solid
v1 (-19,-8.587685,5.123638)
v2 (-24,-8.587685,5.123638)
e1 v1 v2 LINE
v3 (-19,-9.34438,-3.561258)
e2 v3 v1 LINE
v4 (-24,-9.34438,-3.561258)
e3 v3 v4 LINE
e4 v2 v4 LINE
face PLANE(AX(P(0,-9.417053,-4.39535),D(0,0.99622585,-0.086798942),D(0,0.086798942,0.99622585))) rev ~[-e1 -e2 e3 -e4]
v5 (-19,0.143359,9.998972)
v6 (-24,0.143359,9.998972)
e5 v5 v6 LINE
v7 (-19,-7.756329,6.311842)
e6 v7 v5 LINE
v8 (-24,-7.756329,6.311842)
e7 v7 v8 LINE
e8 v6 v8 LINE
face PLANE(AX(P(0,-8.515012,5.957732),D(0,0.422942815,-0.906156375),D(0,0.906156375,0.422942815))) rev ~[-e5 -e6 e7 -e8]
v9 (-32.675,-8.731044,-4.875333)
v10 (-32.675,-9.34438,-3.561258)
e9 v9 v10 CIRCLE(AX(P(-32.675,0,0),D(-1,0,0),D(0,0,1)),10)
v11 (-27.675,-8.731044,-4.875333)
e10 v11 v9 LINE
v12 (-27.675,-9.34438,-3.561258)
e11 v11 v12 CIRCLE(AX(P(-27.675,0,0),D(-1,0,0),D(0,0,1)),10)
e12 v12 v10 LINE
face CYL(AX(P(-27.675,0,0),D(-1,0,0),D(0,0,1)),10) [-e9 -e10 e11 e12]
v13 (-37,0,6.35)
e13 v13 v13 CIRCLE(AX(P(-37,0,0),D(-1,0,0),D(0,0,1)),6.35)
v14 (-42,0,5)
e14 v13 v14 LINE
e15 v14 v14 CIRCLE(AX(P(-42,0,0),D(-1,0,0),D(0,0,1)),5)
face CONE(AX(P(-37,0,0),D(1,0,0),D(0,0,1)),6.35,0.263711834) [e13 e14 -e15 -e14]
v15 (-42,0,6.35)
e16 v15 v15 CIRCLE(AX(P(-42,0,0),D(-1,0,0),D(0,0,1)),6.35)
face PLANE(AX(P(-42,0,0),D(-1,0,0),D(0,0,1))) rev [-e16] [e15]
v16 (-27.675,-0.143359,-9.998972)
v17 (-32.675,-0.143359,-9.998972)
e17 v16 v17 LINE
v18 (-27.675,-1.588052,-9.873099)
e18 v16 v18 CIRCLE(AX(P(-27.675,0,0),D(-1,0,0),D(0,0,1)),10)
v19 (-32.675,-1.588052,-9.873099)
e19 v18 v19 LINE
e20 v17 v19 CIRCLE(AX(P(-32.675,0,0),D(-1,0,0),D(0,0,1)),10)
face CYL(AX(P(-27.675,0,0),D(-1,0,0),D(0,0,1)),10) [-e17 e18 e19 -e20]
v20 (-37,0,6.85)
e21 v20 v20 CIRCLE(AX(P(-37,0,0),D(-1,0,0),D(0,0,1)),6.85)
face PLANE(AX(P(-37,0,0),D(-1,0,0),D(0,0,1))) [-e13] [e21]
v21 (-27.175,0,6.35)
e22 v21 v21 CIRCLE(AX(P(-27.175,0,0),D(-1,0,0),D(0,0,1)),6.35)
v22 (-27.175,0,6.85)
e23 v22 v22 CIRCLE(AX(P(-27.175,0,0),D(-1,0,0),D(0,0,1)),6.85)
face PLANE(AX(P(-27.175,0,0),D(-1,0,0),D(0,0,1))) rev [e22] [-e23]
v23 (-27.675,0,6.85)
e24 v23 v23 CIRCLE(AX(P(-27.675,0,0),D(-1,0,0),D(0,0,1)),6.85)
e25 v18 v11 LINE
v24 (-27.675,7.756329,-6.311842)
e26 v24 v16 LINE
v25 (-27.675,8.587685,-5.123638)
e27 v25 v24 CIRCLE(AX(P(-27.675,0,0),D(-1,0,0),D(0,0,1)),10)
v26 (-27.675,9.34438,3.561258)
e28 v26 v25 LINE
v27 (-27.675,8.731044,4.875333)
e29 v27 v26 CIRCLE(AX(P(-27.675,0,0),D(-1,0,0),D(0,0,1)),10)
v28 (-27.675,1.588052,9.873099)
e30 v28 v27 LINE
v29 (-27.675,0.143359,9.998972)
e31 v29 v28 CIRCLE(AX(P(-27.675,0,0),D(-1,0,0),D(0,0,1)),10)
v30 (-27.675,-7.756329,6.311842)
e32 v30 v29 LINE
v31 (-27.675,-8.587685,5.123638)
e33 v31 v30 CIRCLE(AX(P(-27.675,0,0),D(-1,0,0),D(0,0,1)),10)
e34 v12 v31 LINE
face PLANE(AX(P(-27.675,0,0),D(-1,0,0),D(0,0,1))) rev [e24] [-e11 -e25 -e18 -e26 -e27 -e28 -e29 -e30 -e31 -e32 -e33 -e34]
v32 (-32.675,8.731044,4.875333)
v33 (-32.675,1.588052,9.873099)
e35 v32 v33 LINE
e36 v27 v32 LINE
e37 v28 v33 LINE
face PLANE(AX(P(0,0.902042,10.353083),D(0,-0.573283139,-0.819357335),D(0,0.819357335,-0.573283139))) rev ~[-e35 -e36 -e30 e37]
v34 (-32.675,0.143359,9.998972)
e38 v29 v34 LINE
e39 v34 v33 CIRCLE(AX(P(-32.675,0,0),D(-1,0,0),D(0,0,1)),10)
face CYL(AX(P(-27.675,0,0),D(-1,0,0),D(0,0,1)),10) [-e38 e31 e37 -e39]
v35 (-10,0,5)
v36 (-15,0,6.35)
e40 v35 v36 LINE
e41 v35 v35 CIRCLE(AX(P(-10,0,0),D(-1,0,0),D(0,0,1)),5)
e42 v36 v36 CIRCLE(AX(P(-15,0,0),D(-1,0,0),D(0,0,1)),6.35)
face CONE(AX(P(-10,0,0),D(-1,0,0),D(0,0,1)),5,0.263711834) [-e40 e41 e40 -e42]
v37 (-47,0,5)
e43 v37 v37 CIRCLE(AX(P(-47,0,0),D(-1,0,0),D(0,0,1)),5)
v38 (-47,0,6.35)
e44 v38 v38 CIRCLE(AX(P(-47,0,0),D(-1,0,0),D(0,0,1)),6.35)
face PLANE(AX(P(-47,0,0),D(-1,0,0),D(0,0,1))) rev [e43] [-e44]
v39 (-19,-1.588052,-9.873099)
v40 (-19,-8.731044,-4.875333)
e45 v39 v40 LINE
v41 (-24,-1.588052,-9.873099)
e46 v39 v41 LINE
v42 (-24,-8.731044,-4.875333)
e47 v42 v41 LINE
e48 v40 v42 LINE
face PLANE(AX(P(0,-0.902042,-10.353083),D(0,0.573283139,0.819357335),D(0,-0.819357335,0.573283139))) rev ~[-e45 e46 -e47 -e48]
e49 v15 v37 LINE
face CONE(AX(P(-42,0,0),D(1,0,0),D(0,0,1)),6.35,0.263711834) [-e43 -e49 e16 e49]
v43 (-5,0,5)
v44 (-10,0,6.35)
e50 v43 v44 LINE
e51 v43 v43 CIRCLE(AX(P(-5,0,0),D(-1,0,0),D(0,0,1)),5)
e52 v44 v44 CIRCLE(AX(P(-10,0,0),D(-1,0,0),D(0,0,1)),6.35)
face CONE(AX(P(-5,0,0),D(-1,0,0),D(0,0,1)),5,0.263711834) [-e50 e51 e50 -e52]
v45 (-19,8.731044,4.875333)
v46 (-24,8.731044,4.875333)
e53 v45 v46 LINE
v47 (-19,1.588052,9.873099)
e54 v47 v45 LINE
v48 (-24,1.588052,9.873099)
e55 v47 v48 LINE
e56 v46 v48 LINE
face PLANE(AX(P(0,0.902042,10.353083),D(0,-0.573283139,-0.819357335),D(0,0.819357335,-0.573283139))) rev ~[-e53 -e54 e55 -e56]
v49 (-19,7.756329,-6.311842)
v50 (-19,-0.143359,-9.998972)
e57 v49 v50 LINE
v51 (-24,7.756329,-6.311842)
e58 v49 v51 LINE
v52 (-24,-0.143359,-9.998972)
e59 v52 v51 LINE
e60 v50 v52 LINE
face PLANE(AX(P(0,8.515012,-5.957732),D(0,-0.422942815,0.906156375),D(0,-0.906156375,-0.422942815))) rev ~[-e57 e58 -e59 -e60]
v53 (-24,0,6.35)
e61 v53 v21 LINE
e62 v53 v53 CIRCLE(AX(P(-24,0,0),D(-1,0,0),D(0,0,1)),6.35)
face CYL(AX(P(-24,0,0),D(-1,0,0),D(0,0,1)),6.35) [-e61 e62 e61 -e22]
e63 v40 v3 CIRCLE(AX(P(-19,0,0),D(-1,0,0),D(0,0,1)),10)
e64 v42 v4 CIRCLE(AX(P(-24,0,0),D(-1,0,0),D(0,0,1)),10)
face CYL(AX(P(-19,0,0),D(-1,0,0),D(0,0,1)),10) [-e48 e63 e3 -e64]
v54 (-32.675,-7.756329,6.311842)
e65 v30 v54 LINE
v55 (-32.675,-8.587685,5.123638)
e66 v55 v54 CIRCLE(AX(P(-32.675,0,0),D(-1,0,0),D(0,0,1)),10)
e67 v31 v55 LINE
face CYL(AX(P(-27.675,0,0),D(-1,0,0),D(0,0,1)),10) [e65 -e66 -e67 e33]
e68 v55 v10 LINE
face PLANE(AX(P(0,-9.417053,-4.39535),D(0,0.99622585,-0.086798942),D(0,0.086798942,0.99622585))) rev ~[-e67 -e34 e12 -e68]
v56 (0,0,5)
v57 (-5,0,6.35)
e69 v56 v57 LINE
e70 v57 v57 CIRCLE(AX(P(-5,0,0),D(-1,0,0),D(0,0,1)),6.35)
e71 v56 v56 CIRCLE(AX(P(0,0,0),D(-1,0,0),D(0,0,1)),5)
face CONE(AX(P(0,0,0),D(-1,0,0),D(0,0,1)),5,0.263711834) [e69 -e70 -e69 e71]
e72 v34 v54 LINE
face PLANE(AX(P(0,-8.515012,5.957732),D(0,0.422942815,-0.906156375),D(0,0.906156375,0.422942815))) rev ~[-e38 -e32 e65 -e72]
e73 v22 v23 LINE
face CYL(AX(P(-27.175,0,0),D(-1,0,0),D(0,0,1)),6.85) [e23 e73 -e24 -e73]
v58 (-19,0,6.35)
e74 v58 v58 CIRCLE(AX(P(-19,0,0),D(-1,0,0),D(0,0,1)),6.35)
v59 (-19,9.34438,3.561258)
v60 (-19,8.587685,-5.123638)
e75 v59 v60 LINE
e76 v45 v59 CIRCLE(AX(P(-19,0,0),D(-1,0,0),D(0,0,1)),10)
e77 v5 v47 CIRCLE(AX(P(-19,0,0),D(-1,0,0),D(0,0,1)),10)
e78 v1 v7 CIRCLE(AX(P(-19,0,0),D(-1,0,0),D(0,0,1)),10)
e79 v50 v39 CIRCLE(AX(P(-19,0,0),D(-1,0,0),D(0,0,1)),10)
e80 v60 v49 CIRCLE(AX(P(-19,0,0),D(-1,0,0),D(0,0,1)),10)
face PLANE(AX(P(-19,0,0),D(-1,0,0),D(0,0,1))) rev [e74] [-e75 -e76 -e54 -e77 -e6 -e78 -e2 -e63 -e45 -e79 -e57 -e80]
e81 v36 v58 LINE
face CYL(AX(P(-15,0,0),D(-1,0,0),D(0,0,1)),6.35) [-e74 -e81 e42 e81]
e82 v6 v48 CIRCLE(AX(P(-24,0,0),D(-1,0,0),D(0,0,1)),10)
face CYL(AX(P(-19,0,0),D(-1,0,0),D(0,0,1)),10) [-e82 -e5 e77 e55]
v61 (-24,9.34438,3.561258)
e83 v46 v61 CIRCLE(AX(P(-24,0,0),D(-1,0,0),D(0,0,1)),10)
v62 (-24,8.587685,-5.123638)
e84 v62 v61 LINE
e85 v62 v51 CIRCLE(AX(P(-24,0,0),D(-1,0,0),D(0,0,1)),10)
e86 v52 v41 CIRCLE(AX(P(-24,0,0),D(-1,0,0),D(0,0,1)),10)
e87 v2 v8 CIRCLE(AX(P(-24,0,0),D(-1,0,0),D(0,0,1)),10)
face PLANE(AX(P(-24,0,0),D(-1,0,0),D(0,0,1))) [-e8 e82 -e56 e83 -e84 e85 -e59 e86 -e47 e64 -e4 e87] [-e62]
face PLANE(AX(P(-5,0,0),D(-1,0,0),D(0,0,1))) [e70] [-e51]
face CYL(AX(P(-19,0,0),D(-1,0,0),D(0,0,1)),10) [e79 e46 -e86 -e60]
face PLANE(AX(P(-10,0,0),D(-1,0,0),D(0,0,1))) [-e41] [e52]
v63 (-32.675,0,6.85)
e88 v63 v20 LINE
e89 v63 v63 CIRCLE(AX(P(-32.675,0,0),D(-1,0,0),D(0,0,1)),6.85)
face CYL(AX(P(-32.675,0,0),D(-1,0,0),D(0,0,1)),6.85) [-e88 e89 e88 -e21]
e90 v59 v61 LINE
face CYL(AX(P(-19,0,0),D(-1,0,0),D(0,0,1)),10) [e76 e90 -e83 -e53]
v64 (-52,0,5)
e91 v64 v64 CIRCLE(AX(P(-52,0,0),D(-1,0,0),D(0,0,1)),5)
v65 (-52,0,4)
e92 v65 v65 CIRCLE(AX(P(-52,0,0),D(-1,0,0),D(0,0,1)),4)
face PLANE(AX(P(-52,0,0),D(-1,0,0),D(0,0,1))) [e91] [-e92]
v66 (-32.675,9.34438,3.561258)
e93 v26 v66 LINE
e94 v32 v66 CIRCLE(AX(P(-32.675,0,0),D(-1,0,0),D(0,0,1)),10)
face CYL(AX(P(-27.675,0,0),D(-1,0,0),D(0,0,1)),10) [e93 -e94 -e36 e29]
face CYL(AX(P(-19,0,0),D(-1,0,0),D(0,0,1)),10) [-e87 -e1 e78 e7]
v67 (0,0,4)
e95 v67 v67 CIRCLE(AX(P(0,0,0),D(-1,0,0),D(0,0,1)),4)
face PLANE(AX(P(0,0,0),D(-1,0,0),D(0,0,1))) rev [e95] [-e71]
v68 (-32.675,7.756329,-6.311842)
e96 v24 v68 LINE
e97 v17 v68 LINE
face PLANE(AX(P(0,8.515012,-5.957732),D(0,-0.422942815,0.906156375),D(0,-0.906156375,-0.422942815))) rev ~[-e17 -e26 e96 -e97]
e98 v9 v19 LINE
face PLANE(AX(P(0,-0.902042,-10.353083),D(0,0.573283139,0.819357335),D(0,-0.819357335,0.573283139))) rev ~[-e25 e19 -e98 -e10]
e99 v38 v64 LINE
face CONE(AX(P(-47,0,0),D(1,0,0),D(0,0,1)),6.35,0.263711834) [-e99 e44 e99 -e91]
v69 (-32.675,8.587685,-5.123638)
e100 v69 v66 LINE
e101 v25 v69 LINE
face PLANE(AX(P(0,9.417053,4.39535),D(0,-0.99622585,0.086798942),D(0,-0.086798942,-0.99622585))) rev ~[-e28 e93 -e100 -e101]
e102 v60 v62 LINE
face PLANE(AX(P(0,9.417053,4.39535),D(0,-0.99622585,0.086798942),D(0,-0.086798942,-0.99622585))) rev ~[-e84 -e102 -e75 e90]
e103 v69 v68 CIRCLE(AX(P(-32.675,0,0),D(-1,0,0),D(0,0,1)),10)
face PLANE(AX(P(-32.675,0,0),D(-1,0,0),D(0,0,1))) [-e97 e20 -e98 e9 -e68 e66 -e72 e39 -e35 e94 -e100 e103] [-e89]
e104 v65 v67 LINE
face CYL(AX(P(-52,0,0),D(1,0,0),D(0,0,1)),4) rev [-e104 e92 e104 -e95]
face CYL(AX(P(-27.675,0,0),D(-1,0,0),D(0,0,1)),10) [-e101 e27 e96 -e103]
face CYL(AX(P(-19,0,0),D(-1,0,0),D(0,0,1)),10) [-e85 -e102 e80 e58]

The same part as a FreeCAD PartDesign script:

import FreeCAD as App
import Part
import Sketcher

V = App.Vector
Q = App.Units.Quantity

doc = App.newDocument("Part")
body = doc.addObject("PartDesign::Body", "Body")

# Sketch on XZ plane
sketch1 = body.newObject("Sketcher::SketchObject", "Sketch")
sketch1.AttachmentSupport = (doc.getObject("XZ_Plane"), [""])
sketch1.MapMode = "FlatFace"
sketch1.addGeometry(Part.LineSegment(V(-52, 5, 0), V(-52, 4, 0)), False)
sketch1.addGeometry(Part.LineSegment(V(-52, 4, 0), V(0, 4, 0)), False)
sketch1.addGeometry(Part.LineSegment(V(0, 4, 0), V(0, 5, 0)), False)
sketch1.addGeometry(Part.LineSegment(V(0, 5, 0), V(-5, 6.35, 0)), False)
sketch1.addGeometry(Part.LineSegment(V(-5, 6.35, 0), V(-5, 5, 0)), False)
sketch1.addGeometry(Part.LineSegment(V(-5, 5, 0), V(-10, 6.35, 0)), False)
sketch1.addGeometry(Part.LineSegment(V(-10, 6.35, 0), V(-10, 5, 0)), False)
sketch1.addGeometry(Part.LineSegment(V(-10, 5, 0), V(-15, 6.35, 0)), False)
sketch1.addGeometry(Part.LineSegment(V(-15, 6.35, 0), V(-19, 6.35, 0)), False)
sketch1.addGeometry(Part.LineSegment(V(-19, 6.35, 0), V(-19, 10, 0)), False)
sketch1.addGeometry(Part.LineSegment(V(-19, 10, 0), V(-24, 10, 0)), False)
sketch1.addGeometry(Part.LineSegment(V(-24, 10, 0), V(-24, 6.35, 0)), False)
sketch1.addGeometry(Part.LineSegment(V(-24, 6.35, 0), V(-27.175, 6.35, 0)), False)
sketch1.addGeometry(Part.LineSegment(V(-27.175, 6.35, 0), V(-27.175, 6.85, 0)), False)
sketch1.addGeometry(Part.LineSegment(V(-27.175, 6.85, 0), V(-27.675, 6.85, 0)), False)
sketch1.addGeometry(Part.LineSegment(V(-27.675, 6.85, 0), V(-27.675, 10, 0)), False)
sketch1.addGeometry(Part.LineSegment(V(-27.675, 10, 0), V(-32.675, 10, 0)), False)
sketch1.addGeometry(Part.LineSegment(V(-32.675, 10, 0), V(-32.675, 6.85, 0)), False)
sketch1.addGeometry(Part.LineSegment(V(-32.675, 6.85, 0), V(-37, 6.85, 0)), False)
sketch1.addGeometry(Part.LineSegment(V(-37, 6.85, 0), V(-37, 6.35, 0)), False)
sketch1.addGeometry(Part.LineSegment(V(-37, 6.35, 0), V(-42, 5, 0)), False)
sketch1.addGeometry(Part.LineSegment(V(-42, 5, 0), V(-42, 6.35, 0)), False)
sketch1.addGeometry(Part.LineSegment(V(-42, 6.35, 0), V(-47, 5, 0)), False)
sketch1.addGeometry(Part.LineSegment(V(-47, 5, 0), V(-47, 6.35, 0)), False)
sketch1.addGeometry(Part.LineSegment(V(-47, 6.35, 0), V(-52, 5, 0)), False)
sketch1.addConstraint(Sketcher.Constraint("Coincident", 0, 2, 1, 1))
sketch1.addConstraint(Sketcher.Constraint("Coincident", 1, 2, 2, 1))
sketch1.addConstraint(Sketcher.Constraint("Coincident", 2, 2, 3, 1))
sketch1.addConstraint(Sketcher.Constraint("Coincident", 3, 2, 4, 1))
sketch1.addConstraint(Sketcher.Constraint("Coincident", 4, 2, 5, 1))
sketch1.addConstraint(Sketcher.Constraint("Coincident", 5, 2, 6, 1))
sketch1.addConstraint(Sketcher.Constraint("Coincident", 6, 2, 7, 1))
sketch1.addConstraint(Sketcher.Constraint("Coincident", 7, 2, 8, 1))
sketch1.addConstraint(Sketcher.Constraint("Coincident", 8, 2, 9, 1))
sketch1.addConstraint(Sketcher.Constraint("Coincident", 9, 2, 10, 1))
sketch1.addConstraint(Sketcher.Constraint("Coincident", 10, 2, 11, 1))
sketch1.addConstraint(Sketcher.Constraint("Coincident", 11, 2, 12, 1))
sketch1.addConstraint(Sketcher.Constraint("Coincident", 12, 2, 13, 1))
sketch1.addConstraint(Sketcher.Constraint("Coincident", 13, 2, 14, 1))
sketch1.addConstraint(Sketcher.Constraint("Coincident", 14, 2, 15, 1))
sketch1.addConstraint(Sketcher.Constraint("Coincident", 15, 2, 16, 1))
sketch1.addConstraint(Sketcher.Constraint("Coincident", 16, 2, 17, 1))
sketch1.addConstraint(Sketcher.Constraint("Coincident", 17, 2, 18, 1))
sketch1.addConstraint(Sketcher.Constraint("Coincident", 18, 2, 19, 1))
sketch1.addConstraint(Sketcher.Constraint("Coincident", 19, 2, 20, 1))
sketch1.addConstraint(Sketcher.Constraint("Coincident", 20, 2, 21, 1))
sketch1.addConstraint(Sketcher.Constraint("Coincident", 21, 2, 22, 1))
sketch1.addConstraint(Sketcher.Constraint("Coincident", 22, 2, 23, 1))
sketch1.addConstraint(Sketcher.Constraint("Coincident", 23, 2, 24, 1))
sketch1.addConstraint(Sketcher.Constraint("Coincident", 24, 2, 0, 1))
sketch1.addConstraint(Sketcher.Constraint("Vertical", 0))
sketch1.addConstraint(Sketcher.Constraint("Horizontal", 1))
sketch1.addConstraint(Sketcher.Constraint("Vertical", 2))
sketch1.addConstraint(Sketcher.Constraint("Vertical", 4))
sketch1.addConstraint(Sketcher.Constraint("Vertical", 6))
sketch1.addConstraint(Sketcher.Constraint("Horizontal", 8))
sketch1.addConstraint(Sketcher.Constraint("Vertical", 9))
sketch1.addConstraint(Sketcher.Constraint("Horizontal", 10))
sketch1.addConstraint(Sketcher.Constraint("Vertical", 11))
sketch1.addConstraint(Sketcher.Constraint("Horizontal", 12))
sketch1.addConstraint(Sketcher.Constraint("Vertical", 13))
sketch1.addConstraint(Sketcher.Constraint("Horizontal", 14))
sketch1.addConstraint(Sketcher.Constraint("Vertical", 15))
sketch1.addConstraint(Sketcher.Constraint("Horizontal", 16))
sketch1.addConstraint(Sketcher.Constraint("Vertical", 17))
sketch1.addConstraint(Sketcher.Constraint("Horizontal", 18))
sketch1.addConstraint(Sketcher.Constraint("Vertical", 19))
sketch1.addConstraint(Sketcher.Constraint("Vertical", 21))
sketch1.addConstraint(Sketcher.Constraint("Vertical", 23))
sketch1.addConstraint(Sketcher.Constraint("PointOnObject", 1, 2, -2))
sketch1.addConstraint(Sketcher.Constraint("Parallel", 3, 5))
sketch1.addConstraint(Sketcher.Constraint("Parallel", 5, 7))
sketch1.addConstraint(Sketcher.Constraint("Parallel", 20, 22))
sketch1.addConstraint(Sketcher.Constraint("Parallel", 22, 24))
sketch1.addConstraint(Sketcher.Constraint("Horizontal", 2, 2, 4, 2))
sketch1.addConstraint(Sketcher.Constraint("Horizontal", 3, 2, 5, 2))
sketch1.addConstraint(Sketcher.Constraint("Horizontal", 4, 2, 6, 2))
sketch1.addConstraint(Sketcher.Constraint("Horizontal", 5, 2, 7, 2))
sketch1.addConstraint(Sketcher.Constraint("Horizontal", 8, 2, 11, 2))
sketch1.addConstraint(Sketcher.Constraint("Horizontal", 10, 2, 15, 2))
sketch1.addConstraint(Sketcher.Constraint("Horizontal", 14, 2, 17, 2))
sketch1.addConstraint(Sketcher.Constraint("Horizontal", 12, 2, 19, 2))
sketch1.addConstraint(Sketcher.Constraint("Horizontal", 6, 2, 20, 2))
sketch1.addConstraint(Sketcher.Constraint("Horizontal", 19, 2, 21, 2))
sketch1.addConstraint(Sketcher.Constraint("Horizontal", 20, 2, 22, 2))
sketch1.addConstraint(Sketcher.Constraint("Horizontal", 21, 2, 23, 2))
sketch1.addConstraint(Sketcher.Constraint("Horizontal", 22, 2, 24, 2))
sketch1.addConstraint(Sketcher.Constraint("Equal", 10, 16))
sketch1.addConstraint(Sketcher.Constraint("Equal", 14, 13))
sketch1.addConstraint(Sketcher.Constraint("Equal", 7, 20))
sketch1.addConstraint(Sketcher.Constraint("DistanceX", 1, 1, 1, 2, Q("52 mm")))
sketch1.addConstraint(Sketcher.Constraint("DistanceX", 8, 2, 8, 1, Q("4 mm")))
sketch1.addConstraint(Sketcher.Constraint("DistanceX", 10, 2, 10, 1, Q("5 mm")))
sketch1.addConstraint(Sketcher.Constraint("DistanceY", 0, 2, 0, 1, Q("1 mm")))
sketch1.addConstraint(Sketcher.Constraint("DistanceX", 14, 2, 14, 1, Q("0.5 mm")))
sketch1.addConstraint(Sketcher.Constraint("DistanceY", -1, 1, 0, 2, Q("4 mm")))
sketch1.addConstraint(Sketcher.Constraint("DistanceX", 3, 2, -1, 1, Q("5 mm")))
sketch1.addConstraint(Sketcher.Constraint("DistanceY", -1, 1, 9, 2, Q("10 mm")))
sketch1.addConstraint(Sketcher.Constraint("DistanceY", 4, 2, 4, 1, Q("1.35 mm")))
sketch1.addConstraint(Sketcher.Constraint("DistanceX", 12, 2, 12, 1, Q("3.175 mm")))
revolution = body.newObject("PartDesign::Revolution", "Revolution")
revolution.Profile = sketch1
revolution.ReferenceAxis = (sketch1, ["H_Axis"])
revolution.Angle = 360

# Sketch on YZ plane
sketch2 = body.newObject("Sketcher::SketchObject", "Sketch001")
sketch2.AttachmentSupport = (doc.getObject("YZ_Plane"), [""])
sketch2.MapMode = "FlatFace"
sketch2.addGeometry(Part.Circle(V(0, 0, 0), V(0, 0, 1), 21.385833), False)
sketch2.addGeometry(Part.LineSegment(V(-8.515012, 5.957732, 0), V(0.902042, 10.353083, 0)), False)
sketch2.addGeometry(Part.LineSegment(V(0.902042, 10.353083, 0), V(9.417053, 4.39535, 0)), False)
sketch2.addGeometry(Part.LineSegment(V(9.417053, 4.39535, 0), V(8.515012, -5.957732, 0)), False)
sketch2.addGeometry(Part.LineSegment(V(8.515012, -5.957732, 0), V(-0.902042, -10.353083, 0)), False)
sketch2.addGeometry(Part.LineSegment(V(-0.902042, -10.353083, 0), V(-9.417053, -4.39535, 0)), False)
sketch2.addGeometry(Part.LineSegment(V(-9.417053, -4.39535, 0), V(-8.515012, 5.957732, 0)), False)
sketch2.addConstraint(Sketcher.Constraint("Coincident", 1, 2, 2, 1))
sketch2.addConstraint(Sketcher.Constraint("Coincident", 2, 2, 3, 1))
sketch2.addConstraint(Sketcher.Constraint("Coincident", 3, 2, 4, 1))
sketch2.addConstraint(Sketcher.Constraint("Coincident", 4, 2, 5, 1))
sketch2.addConstraint(Sketcher.Constraint("Coincident", 5, 2, 6, 1))
sketch2.addConstraint(Sketcher.Constraint("Coincident", 6, 2, 1, 1))
sketch2.addConstraint(Sketcher.Constraint("Coincident", 0, 3, -1, 1))
sketch2.addConstraint(Sketcher.Constraint("Symmetric", 1, 2, 4, 2, -1, 1))
sketch2.addConstraint(Sketcher.Constraint("Symmetric", 2, 2, 5, 2, -1, 1))
sketch2.addConstraint(Sketcher.Constraint("Symmetric", 3, 2, 6, 2, -1, 1))
sketch2.addConstraint(Sketcher.Constraint("Equal", 1, 2))
sketch2.addConstraint(Sketcher.Constraint("Equal", 2, 3))
sketch2.addConstraint(Sketcher.Constraint("Diameter", 0, Q("42.771666 mm")))
sketch2.addConstraint(Sketcher.Constraint("DistanceY", 5, 2, 2, 2, Q("8.7907 mm")))
sketch2.addConstraint(Sketcher.Constraint("DistanceX", 1, 2, 2, 2, Q("8.515011 mm")))
sketch2.addConstraint(Sketcher.Constraint("DistanceX", 3, 2, 2, 2, Q("0.902041 mm")))
sketch2.addConstraint(Sketcher.Constraint("DistanceY", 4, 2, 3, 2, Q("4.395351 mm")))
pocket1 = body.newObject("PartDesign::Pocket", "Pocket")
pocket1.Profile = sketch2
pocket1.Length = 50.9

doc.recompute()
